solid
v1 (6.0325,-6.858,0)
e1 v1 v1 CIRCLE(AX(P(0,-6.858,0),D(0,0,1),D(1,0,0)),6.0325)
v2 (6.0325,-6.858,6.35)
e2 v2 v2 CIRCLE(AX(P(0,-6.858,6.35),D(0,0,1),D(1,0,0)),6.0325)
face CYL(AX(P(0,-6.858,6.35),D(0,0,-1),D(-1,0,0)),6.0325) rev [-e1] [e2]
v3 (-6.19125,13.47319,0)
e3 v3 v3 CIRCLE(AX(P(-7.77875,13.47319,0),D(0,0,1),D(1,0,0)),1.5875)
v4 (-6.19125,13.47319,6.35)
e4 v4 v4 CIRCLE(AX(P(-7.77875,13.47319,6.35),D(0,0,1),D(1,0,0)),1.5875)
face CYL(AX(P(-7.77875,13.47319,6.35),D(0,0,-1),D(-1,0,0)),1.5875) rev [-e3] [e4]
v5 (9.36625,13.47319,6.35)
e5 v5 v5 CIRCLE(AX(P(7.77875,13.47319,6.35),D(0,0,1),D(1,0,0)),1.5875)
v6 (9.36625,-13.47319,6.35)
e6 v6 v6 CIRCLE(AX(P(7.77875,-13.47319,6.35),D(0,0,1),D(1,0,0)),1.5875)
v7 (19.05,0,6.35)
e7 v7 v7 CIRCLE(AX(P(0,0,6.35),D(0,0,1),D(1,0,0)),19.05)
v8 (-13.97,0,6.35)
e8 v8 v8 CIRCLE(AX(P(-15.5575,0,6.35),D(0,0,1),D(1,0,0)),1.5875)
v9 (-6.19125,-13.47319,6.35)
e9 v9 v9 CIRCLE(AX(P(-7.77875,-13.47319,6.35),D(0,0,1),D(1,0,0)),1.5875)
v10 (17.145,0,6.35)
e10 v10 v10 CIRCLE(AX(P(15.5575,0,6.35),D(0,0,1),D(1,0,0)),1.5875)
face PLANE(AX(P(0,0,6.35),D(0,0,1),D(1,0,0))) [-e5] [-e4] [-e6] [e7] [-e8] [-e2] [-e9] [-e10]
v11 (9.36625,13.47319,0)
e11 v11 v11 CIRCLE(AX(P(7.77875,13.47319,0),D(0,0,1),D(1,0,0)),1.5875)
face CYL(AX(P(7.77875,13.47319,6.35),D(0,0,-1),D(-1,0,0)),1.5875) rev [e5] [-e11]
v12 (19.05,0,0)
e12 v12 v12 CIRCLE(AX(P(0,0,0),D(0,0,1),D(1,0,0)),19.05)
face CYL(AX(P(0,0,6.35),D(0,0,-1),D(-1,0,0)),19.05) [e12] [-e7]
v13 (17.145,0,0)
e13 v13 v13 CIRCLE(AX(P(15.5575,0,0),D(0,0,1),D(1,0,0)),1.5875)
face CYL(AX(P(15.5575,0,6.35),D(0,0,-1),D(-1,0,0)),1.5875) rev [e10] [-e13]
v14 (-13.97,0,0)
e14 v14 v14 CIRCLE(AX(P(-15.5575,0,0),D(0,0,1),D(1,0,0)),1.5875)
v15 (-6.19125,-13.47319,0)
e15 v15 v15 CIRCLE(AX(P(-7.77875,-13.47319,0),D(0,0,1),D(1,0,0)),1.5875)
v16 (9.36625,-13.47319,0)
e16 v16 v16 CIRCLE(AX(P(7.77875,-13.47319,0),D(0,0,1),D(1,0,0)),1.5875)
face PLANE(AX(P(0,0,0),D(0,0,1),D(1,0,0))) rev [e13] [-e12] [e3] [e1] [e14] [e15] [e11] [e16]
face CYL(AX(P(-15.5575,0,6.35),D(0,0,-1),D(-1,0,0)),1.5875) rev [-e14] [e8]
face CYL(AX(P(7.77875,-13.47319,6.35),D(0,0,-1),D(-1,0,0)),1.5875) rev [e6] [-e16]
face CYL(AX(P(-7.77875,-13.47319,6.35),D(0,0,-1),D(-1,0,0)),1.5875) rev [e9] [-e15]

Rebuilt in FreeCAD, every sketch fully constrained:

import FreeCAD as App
import Part
import Sketcher
from FreeCAD import Vector
Q = App.Units.Quantity

doc = App.newDocument("Part")
body = doc.addObject("PartDesign::Body", "Body")

# Sketch on XY plane
sketch1 = body.newObject("Sketcher::SketchObject", "Sketch")
sketch1.AttachmentSupport = (doc.getObject("XY_Plane"), [""])
sketch1.MapMode = "FlatFace"
sketch1.addGeometry([
    Part.Circle(Vector(0, 0, 0), Vector(0, 0, 1), 19.1),  # 0
    Part.Circle(Vector(-7.8, -13.5, 0), Vector(0, 0, 1), 1.6),  # 1
    Part.Circle(Vector(7.8, -13.5, 0), Vector(0, 0, 1), 1.6),  # 2
    Part.Circle(Vector(0, -6.9, 0), Vector(0, 0, 1), 6),  # 3
    Part.Circle(Vector(-15.6, 0, 0), Vector(0, 0, 1), 1.6),  # 4
    Part.Circle(Vector(-7.8, 13.5, 0), Vector(0, 0, 1), 1.6),  # 5
    Part.Circle(Vector(15.6, 0, 0), Vector(0, 0, 1), 1.6),  # 6
    Part.Circle(Vector(7.8, 13.5, 0), Vector(0, 0, 1), 1.6),  # 7
], False)
sketch1.addConstraint([
    Sketcher.Constraint("Coincident", 0, 3, -1, 1),
    Sketcher.Constraint("Equal", 1, 2),
    Sketcher.Constraint("Equal", 2, 4),
    Sketcher.Constraint("Equal", 4, 5),
    Sketcher.Constraint("Equal", 5, 6),
    Sketcher.Constraint("Equal", 6, 7),
    Sketcher.Constraint("Symmetric", 2, 3, 5, 3, -1, 1),
    Sketcher.Constraint("Symmetric", 4, 3, 6, 3, -1, 1),
    Sketcher.Constraint("Symmetric", 1, 3, 7, 3, -1, 1),
    Sketcher.Constraint("Symmetric", 1, 3, 2, 3, -2),
    Sketcher.Constraint("PointOnObject", 3, 3, -2),
    Sketcher.Constraint("PointOnObject", 4, 3, -1),
    Sketcher.Constraint("Diameter", 0, Q("1.5 in")),
    Sketcher.Constraint("Diameter", 1, Q("0.125 in")),
    Sketcher.Constraint("Diameter", 3, Q("0.475 in")),
    Sketcher.Constraint("DistanceY", 3, 3, -1, 1, Q("0.27 in")),
    Sketcher.Constraint("DistanceX", 4, 3, -1, 1, Q("0.6125 in")),
    Sketcher.Constraint("DistanceX", 1, 3, 2, 3, Q("0.6125 in")),
    Sketcher.Constraint("DistanceY", 1, 3, -1, 1, 13.47319),
])
pad1 = body.newObject("PartDesign::Pad", "Pad")
pad1.Profile = sketch1
pad1.Length = Q("0.25 in")

doc.recompute()
